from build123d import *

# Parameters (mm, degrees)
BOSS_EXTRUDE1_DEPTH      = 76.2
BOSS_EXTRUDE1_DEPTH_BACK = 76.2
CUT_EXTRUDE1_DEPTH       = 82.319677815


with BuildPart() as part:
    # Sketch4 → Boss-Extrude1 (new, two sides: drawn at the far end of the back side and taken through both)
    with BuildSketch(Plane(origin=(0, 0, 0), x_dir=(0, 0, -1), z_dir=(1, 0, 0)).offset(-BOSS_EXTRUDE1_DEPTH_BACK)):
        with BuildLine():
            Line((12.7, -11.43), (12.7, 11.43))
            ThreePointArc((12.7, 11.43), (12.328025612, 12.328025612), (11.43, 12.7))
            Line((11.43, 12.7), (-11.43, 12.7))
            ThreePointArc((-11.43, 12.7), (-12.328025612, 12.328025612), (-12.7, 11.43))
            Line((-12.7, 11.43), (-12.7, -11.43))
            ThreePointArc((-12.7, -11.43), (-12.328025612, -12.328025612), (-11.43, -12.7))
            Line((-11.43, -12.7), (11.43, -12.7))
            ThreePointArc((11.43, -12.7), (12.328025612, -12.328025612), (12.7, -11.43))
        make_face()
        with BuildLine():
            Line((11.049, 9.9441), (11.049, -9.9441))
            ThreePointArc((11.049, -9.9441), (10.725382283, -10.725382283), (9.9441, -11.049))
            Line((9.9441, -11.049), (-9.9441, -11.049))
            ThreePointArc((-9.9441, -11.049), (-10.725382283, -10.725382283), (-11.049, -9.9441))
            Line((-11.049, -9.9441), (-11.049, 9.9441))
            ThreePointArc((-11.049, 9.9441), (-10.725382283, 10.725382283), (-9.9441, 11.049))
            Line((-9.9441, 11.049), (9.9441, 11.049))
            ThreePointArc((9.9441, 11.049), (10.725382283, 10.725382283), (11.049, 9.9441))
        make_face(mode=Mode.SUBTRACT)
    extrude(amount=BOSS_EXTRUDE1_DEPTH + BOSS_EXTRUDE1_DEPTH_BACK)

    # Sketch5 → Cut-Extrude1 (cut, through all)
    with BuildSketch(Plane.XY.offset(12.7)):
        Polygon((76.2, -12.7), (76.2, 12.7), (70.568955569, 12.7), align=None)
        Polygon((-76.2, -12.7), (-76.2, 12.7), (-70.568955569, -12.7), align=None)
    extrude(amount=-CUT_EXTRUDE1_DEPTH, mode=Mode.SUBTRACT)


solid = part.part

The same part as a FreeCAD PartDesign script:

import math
import FreeCAD as App
import Part
import Sketcher
Q = App.Units.Quantity


def add_polygon(sketch, points):
    """Adds a closed chain of lines whose ends are joined by coincident constraints."""
    first, n = sketch.GeometryCount, len(points)
    for a, b in zip(points, points[1:] + points[:1]):
        sketch.addGeometry(Part.LineSegment(App.Vector(*a, 0), App.Vector(*b, 0)), False)
    for i in range(n):
        sketch.addConstraint(Sketcher.Constraint("Coincident", first + i, 2, first + (i + 1) % n, 1))

doc = App.newDocument("Part")
body = doc.addObject("PartDesign::Body", "Body")

# Sketch on YZ plane
sketch1 = doc.addObject("Sketcher::SketchObject", "Sketch")
body.addObject(sketch1)
sketch1.AttachmentSupport = (doc.YZ_Plane, [""])
sketch1.MapMode = "FlatFace"
sketch1.addGeometry(Part.LineSegment(App.Vector(-11.4, -12.7, 0), App.Vector(11.4, -12.7, 0)), False)
sketch1.addGeometry(Part.ArcOfCircle(Part.Circle(App.Vector(11.4, -11.4, 0), App.Vector(0, 0, 1), 1.3), math.radians(-90), math.radians(0)), False)
sketch1.addGeometry(Part.LineSegment(App.Vector(12.7, -11.4, 0), App.Vector(12.7, 11.4, 0)), False)
sketch1.addGeometry(Part.ArcOfCircle(Part.Circle(App.Vector(11.4, 11.4, 0), App.Vector(0, 0, 1), 1.3), math.radians(0), math.radians(90)), False)
sketch1.addGeometry(Part.LineSegment(App.Vector(11.4, 12.7, 0), App.Vector(-11.4, 12.7, 0)), False)
sketch1.addGeometry(Part.ArcOfCircle(Part.Circle(App.Vector(-11.4, 11.4, 0), App.Vector(0, 0, 1), 1.3), math.radians(90), math.radians(180)), False)
sketch1.addGeometry(Part.LineSegment(App.Vector(-12.7, 11.4, 0), App.Vector(-12.7, -11.4, 0)), False)
sketch1.addGeometry(Part.ArcOfCircle(Part.Circle(App.Vector(-11.4, -11.4, 0), App.Vector(0, 0, 1), 1.3), math.radians(180), math.radians(270)), False)
sketch1.addGeometry(Part.ArcOfCircle(Part.Circle(App.Vector(9.9, -9.9, 0), App.Vector(0, 0, 1), 1.1), math.radians(-90), math.radians(0)), False)
sketch1.addGeometry(Part.LineSegment(App.Vector(9.9, -11, 0), App.Vector(-9.9, -11, 0)), False)
sketch1.addGeometry(Part.ArcOfCircle(Part.Circle(App.Vector(-9.9, -9.9, 0), App.Vector(0, 0, 1), 1.1), math.radians(180), math.radians(270)), False)
sketch1.addGeometry(Part.LineSegment(App.Vector(-11, -9.9, 0), App.Vector(-11, 9.9, 0)), False)
sketch1.addGeometry(Part.ArcOfCircle(Part.Circle(App.Vector(-9.9, 9.9, 0), App.Vector(0, 0, 1), 1.1), math.radians(90), math.radians(180)), False)
sketch1.addGeometry(Part.LineSegment(App.Vector(-9.9, 11, 0), App.Vector(9.9, 11, 0)), False)
sketch1.addGeometry(Part.ArcOfCircle(Part.Circle(App.Vector(9.9, 9.9, 0), App.Vector(0, 0, 1), 1.1), math.radians(0), math.radians(90)), False)
sketch1.addGeometry(Part.LineSegment(App.Vector(11, 9.9, 0), App.Vector(11, -9.9, 0)), False)
sketch1.addConstraint(Sketcher.Constraint("Tangent", 0, 2, 1, 1))
sketch1.addConstraint(Sketcher.Constraint("Tangent", 1, 2, 2, 1))
sketch1.addConstraint(Sketcher.Constraint("Tangent", 2, 2, 3, 1))
sketch1.addConstraint(Sketcher.Constraint("Tangent", 3, 2, 4, 1))
sketch1.addConstraint(Sketcher.Constraint("Tangent", 4, 2, 5, 1))
sketch1.addConstraint(Sketcher.Constraint("Tangent", 5, 2, 6, 1))
sketch1.addConstraint(Sketcher.Constraint("Tangent", 6, 2, 7, 1))
sketch1.addConstraint(Sketcher.Constraint("Tangent", 7, 2, 0, 1))
sketch1.addConstraint(Sketcher.Constraint("Tangent", 8, 1, 9, 1))
sketch1.addConstraint(Sketcher.Constraint("Tangent", 9, 2, 10, 2))
sketch1.addConstraint(Sketcher.Constraint("Tangent", 10, 1, 11, 1))
sketch1.addConstraint(Sketcher.Constraint("Tangent", 11, 2, 12, 2))
sketch1.addConstraint(Sketcher.Constraint("Tangent", 12, 1, 13, 1))
sketch1.addConstraint(Sketcher.Constraint("Tangent", 13, 2, 14, 2))
sketch1.addConstraint(Sketcher.Constraint("Tangent", 14, 1, 15, 1))
sketch1.addConstraint(Sketcher.Constraint("Tangent", 15, 2, 8, 2))
sketch1.addConstraint(Sketcher.Constraint("Horizontal", 0))
sketch1.addConstraint(Sketcher.Constraint("Vertical", 2))
sketch1.addConstraint(Sketcher.Constraint("Horizontal", 4))
sketch1.addConstraint(Sketcher.Constraint("Vertical", 6))
sketch1.addConstraint(Sketcher.Constraint("Horizontal", 9))
sketch1.addConstraint(Sketcher.Constraint("Vertical", 11))
sketch1.addConstraint(Sketcher.Constraint("Horizontal", 13))
sketch1.addConstraint(Sketcher.Constraint("Vertical", 15))
sketch1.addConstraint(Sketcher.Constraint("Equal", 1, 3))
sketch1.addConstraint(Sketcher.Constraint("Equal", 3, 5))
sketch1.addConstraint(Sketcher.Constraint("Equal", 5, 7))
sketch1.addConstraint(Sketcher.Constraint("Equal", 8, 10))
sketch1.addConstraint(Sketcher.Constraint("Equal", 10, 12))
sketch1.addConstraint(Sketcher.Constraint("Equal", 12, 14))
sketch1.addConstraint(Sketcher.Constraint("Symmetric", 1, 3, 5, 3, -1, 1))
sketch1.addConstraint(Sketcher.Constraint("Symmetric", 8, 3, 12, 3, -1, 1))
sketch1.addConstraint(Sketcher.Constraint("Equal", 4, 2))
sketch1.addConstraint(Sketcher.Constraint("Equal", 13, 11))
sketch1.addConstraint(Sketcher.Constraint("Radius", 1, Q("0.05 in")))
sketch1.addConstraint(Sketcher.Constraint("DistanceX", 0, 1, 0, 2, Q("0.9 in")))
sketch1.addConstraint(Sketcher.Constraint("Radius", 8, Q("0.0435 in")))
sketch1.addConstraint(Sketcher.Constraint("DistanceX", 9, 2, 9, 1, Q("0.783 in")))
pad1 = doc.addObject("PartDesign::Pad", "Pad")
body.addObject(pad1)
pad1.Profile = sketch1
pad1.Type = "TwoLengths"
pad1.Length = Q("3 in")
pad1.Length2 = Q("3 in")

# Sketch on XY plane
sketch2 = doc.addObject("Sketcher::SketchObject", "Sketch001")
body.addObject(sketch2)
sketch2.AttachmentSupport = (doc.XY_Plane, [""])
sketch2.MapMode = "FlatFace"
sketch2.AttachmentOffset = App.Placement(App.Vector(0, 0, 0.5 * 25.4), App.Rotation())
add_polygon(sketch2, [(76, -13), (76, 13), (71, 13)])  # lines 0-2
add_polygon(sketch2, [(-76, 13), (-76, -13), (-71, -13)])  # lines 3-5
sketch2.addConstraint(Sketcher.Constraint("Vertical", 0))
sketch2.addConstraint(Sketcher.Constraint("Horizontal", 1))
sketch2.addConstraint(Sketcher.Constraint("Vertical", 3))
sketch2.addConstraint(Sketcher.Constraint("Horizontal", 4))
sketch2.addConstraint(Sketcher.Constraint("Symmetric", 0, 2, 3, 2, -1, 1))
sketch2.addConstraint(Sketcher.Constraint("Parallel", 2, 5))
sketch2.addConstraint(Sketcher.Constraint("Horizontal", 2, 2, 3, 2))
sketch2.addConstraint(Sketcher.Constraint("Horizontal", 1, 2, 5, 2))
sketch2.addConstraint(Sketcher.Constraint("DistanceY", 0, 1, 0, 2, Q("1 in")))
sketch2.addConstraint(Sketcher.Constraint("DistanceX", -1, 1, 0, 2, Q("3 in")))
sketch2.addConstraint(Sketcher.Constraint("Angle", 2, Q("-77.5 deg")))
pocket1 = doc.addObject("PartDesign::Pocket", "Pocket")
body.addObject(pocket1)
pocket1.Profile = sketch2
pocket1.Type = "ThroughAll"

doc.recompute()
